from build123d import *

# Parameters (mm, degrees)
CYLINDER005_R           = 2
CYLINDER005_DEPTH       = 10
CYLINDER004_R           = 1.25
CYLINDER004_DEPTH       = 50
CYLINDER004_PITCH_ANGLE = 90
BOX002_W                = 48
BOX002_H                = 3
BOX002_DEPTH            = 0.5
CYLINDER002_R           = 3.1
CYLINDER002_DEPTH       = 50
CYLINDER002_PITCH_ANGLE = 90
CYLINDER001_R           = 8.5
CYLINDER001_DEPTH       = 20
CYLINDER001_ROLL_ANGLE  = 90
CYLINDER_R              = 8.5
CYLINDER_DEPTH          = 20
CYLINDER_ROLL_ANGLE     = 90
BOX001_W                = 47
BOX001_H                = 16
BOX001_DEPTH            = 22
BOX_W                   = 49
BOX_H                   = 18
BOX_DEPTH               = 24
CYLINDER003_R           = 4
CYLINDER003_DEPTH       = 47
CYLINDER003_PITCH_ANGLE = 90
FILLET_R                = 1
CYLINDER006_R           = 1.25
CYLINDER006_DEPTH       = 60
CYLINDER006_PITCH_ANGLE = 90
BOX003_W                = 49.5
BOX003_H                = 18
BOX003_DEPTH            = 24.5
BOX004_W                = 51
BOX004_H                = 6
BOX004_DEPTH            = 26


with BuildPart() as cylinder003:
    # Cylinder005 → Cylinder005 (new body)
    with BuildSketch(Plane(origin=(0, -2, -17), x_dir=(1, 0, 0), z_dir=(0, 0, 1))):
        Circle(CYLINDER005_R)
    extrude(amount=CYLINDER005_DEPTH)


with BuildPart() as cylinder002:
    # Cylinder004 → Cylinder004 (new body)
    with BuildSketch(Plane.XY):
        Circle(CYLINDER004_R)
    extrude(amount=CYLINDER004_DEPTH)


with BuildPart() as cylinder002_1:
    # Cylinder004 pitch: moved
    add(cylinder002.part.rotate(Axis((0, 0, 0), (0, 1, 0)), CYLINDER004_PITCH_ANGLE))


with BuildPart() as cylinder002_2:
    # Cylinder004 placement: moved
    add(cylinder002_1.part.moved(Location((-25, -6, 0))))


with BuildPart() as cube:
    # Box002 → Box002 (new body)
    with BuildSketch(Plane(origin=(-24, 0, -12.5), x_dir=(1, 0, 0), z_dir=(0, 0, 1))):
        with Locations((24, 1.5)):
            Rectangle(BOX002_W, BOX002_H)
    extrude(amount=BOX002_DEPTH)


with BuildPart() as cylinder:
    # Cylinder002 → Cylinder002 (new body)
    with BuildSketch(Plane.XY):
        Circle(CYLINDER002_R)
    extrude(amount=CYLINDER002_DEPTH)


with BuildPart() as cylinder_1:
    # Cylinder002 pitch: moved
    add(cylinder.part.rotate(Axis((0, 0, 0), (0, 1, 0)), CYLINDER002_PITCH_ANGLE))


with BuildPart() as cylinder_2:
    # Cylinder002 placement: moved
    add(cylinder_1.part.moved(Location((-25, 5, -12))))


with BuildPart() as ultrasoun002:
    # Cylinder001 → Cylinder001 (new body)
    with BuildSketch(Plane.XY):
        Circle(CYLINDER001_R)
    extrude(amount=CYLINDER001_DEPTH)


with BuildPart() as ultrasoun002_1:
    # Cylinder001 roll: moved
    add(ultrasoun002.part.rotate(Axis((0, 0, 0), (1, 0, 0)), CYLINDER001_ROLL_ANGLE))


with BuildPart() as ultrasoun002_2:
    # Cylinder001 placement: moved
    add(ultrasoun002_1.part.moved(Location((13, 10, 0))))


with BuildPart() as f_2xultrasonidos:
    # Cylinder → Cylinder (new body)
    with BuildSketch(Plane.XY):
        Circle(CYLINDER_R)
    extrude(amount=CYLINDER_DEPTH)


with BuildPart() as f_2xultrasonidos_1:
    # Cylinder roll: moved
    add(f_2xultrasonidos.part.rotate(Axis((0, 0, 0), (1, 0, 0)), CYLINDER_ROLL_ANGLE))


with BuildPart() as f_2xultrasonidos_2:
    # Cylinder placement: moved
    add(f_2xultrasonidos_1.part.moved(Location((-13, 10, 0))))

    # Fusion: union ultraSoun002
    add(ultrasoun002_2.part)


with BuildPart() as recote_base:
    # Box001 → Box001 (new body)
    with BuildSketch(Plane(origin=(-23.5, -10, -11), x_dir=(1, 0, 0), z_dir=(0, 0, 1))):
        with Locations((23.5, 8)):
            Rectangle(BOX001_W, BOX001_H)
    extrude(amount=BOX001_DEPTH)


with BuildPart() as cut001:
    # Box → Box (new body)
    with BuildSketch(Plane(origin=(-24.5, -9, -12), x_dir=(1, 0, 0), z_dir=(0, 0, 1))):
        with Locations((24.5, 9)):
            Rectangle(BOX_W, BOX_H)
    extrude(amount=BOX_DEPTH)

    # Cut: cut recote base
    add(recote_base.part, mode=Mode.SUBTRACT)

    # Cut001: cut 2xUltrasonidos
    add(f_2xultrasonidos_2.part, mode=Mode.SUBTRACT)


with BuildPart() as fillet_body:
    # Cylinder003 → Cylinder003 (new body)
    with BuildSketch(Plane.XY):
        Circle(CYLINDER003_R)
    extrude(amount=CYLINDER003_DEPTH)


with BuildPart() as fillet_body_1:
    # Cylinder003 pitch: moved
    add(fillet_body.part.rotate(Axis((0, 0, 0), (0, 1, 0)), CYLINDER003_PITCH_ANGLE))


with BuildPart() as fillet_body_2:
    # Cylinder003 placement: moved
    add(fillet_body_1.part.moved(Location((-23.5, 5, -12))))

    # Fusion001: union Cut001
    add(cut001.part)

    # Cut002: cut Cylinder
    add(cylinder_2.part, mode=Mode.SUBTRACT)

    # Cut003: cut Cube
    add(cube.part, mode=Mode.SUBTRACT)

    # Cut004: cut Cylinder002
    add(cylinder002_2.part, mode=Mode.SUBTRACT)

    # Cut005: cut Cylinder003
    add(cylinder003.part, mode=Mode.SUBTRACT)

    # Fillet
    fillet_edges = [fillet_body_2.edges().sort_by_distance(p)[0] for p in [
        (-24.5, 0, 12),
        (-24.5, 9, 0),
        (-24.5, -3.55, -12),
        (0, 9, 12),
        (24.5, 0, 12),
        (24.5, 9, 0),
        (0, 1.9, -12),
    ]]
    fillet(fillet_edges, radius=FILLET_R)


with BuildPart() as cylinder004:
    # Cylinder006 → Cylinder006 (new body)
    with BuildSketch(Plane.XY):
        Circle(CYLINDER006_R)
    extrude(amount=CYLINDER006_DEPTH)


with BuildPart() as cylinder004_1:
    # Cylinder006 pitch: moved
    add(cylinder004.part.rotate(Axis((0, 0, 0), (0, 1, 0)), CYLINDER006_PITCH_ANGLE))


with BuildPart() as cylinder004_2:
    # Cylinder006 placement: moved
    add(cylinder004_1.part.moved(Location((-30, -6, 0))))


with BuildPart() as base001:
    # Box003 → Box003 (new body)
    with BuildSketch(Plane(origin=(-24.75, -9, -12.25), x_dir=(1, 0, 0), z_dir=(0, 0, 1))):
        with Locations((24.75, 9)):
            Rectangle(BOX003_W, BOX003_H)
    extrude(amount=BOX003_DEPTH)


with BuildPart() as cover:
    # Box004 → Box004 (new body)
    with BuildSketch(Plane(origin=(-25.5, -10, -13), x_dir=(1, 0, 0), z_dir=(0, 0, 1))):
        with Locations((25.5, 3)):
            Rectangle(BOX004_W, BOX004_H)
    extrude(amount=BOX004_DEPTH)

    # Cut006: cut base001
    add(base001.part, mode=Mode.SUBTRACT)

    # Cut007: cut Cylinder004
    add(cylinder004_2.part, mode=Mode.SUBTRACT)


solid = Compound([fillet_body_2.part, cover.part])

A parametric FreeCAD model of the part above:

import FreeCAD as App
import Part
import Sketcher
from FreeCAD import Vector


def edges_at(feature, points):
    """Names of the edges that pass closest to the given points."""
    edges = feature.Shape.Edges
    near = lambda p: min(range(len(edges)), key=lambda i: edges[i].distToShape(Part.Vertex(*p))[0])
    return sorted({f"Edge{near(p) + 1}" for p in points})

doc = App.newDocument("Part")
params = doc.addObject("Spreadsheet::Sheet", "Params")
for row, (alias, value) in enumerate([
    ("sketch1_diameter", "4 mm"),
    ("pad1_length", "10 mm"),
    ("sketch2_diameter", "2.5 mm"),
    ("pad2_length", "50 mm"),
    ("sketch3_width", "48 mm"),
    ("sketch3_height", "3 mm"),
    ("pad3_length", "0.5 mm"),
    ("sketch4_diameter", "6.2 mm"),
    ("pad4_length", "50 mm"),
    ("sketch5_diameter", "17 mm"),
    ("pad5_length", "20 mm"),
    ("sketch6_diameter", "17 mm"),
    ("pad6_length", "20 mm"),
    ("sketch7_width", "47 mm"),
    ("sketch7_height", "16 mm"),
    ("pad7_length", "22 mm"),
    ("sketch8_width", "49 mm"),
    ("sketch8_height", "18 mm"),
    ("pad8_length", "24 mm"),
    ("sketch9_diameter", "8 mm"),
    ("pad9_length", "47 mm"),
    ("fillet_radius", "1 mm"),
    ("sketch10_diameter", "2.5 mm"),
    ("pad10_length", "60 mm"),
    ("sketch11_height", "18 mm"),
    ("sketch11_width", "49.5 mm"),
    ("pad11_length", "24.5 mm"),
    ("sketch12_width", "51 mm"),
    ("sketch12_height", "6 mm"),
    ("pad12_length", "26 mm"),
], start=1):
    params.set(f"A{row}", alias)
    params.set(f"B{row}", "=" + value)
    params.setAlias(f"B{row}", alias)

body = doc.addObject("PartDesign::Body", "Body")

sketch1 = doc.addObject("Sketcher::SketchObject", "Sketch")
body.addObject(sketch1)
sketch1.AttachmentSupport = (doc.XY_Plane, [""])
sketch1.MapMode = "FlatFace"
sketch1.AttachmentOffset = App.Placement(Vector(0, 0, -17), App.Rotation())
sketch1.addGeometry(Part.Circle(Vector(0, -2, 0), Vector(0, 0, 1), 2), False)
sketch1.addConstraint(Sketcher.Constraint("PointOnObject", 0, 3, -2))
sketch1.addConstraint(Sketcher.Constraint("Diameter", 0, 4.0))
sketch1.addConstraint(Sketcher.Constraint("DistanceY", 0, 3, -1, 1, 2.0))
sketch1.setExpression("Constraints[1]", "Params.sketch1_diameter")
pad1 = doc.addObject("PartDesign::Pad", "Pad")
body.addObject(pad1)
pad1.Profile = sketch1
pad1.setExpression("Length", "Params.pad1_length")
body2 = doc.addObject("PartDesign::Body", "Body001")

sketch2 = doc.addObject("Sketcher::SketchObject", "Sketch001")
body2.addObject(sketch2)
sketch2.AttachmentSupport = (doc.getObject("XY_Plane001"), [""])
sketch2.MapMode = "FlatFace"
sketch2.addGeometry(Part.Circle(Vector(0, 0, 0), Vector(0, 0, 1), 1.25), False)
sketch2.addConstraint(Sketcher.Constraint("Coincident", 0, 3, -1, 1))
sketch2.addConstraint(Sketcher.Constraint("Diameter", 0, 2.5))
sketch2.setExpression("Constraints[1]", "Params.sketch2_diameter")
pad2 = doc.addObject("PartDesign::Pad", "Pad001")
body2.addObject(pad2)
pad2.Profile = sketch2
pad2.setExpression("Length", "Params.pad2_length")
body3 = doc.addObject("PartDesign::Body", "Body002")
doc.recompute()

body2.Placement = App.Placement(Vector(0, 0, 0), App.Rotation(Vector(0, 1, 0), 90))
boolean = doc.addObject("PartDesign::Boolean", "Boolean")
body3.addObject(boolean)
boolean.Type = "Fuse"
boolean.addObjects([body2])
body4 = doc.addObject("PartDesign::Body", "Body003")
doc.recompute()

body3.Placement = App.Placement(Vector(-25, -6, 0), App.Rotation(Vector(0, 0, 1), 0))
boolean2 = doc.addObject("PartDesign::Boolean", "Boolean001")
body4.addObject(boolean2)
boolean2.Type = "Fuse"
boolean2.addObjects([body3])
body5 = doc.addObject("PartDesign::Body", "Body004")

sketch3 = doc.addObject("Sketcher::SketchObject", "Sketch002")
body5.addObject(sketch3)
sketch3.AttachmentSupport = (doc.getObject("XY_Plane004"), [""])
sketch3.MapMode = "FlatFace"
sketch3.AttachmentOffset = App.Placement(Vector(0, 0, -12.5), App.Rotation())
sketch3.addGeometry(Part.LineSegment(Vector(-24, 3, 0), Vector(-24, 0, 0)), False)
sketch3.addGeometry(Part.LineSegment(Vector(-24, 0, 0), Vector(24, 0, 0)), False)
sketch3.addGeometry(Part.LineSegment(Vector(24, 0, 0), Vector(24, 3, 0)), False)
sketch3.addGeometry(Part.LineSegment(Vector(24, 3, 0), Vector(-24, 3, 0)), False)
sketch3.addConstraint(Sketcher.Constraint("Coincident", 0, 2, 1, 1))
sketch3.addConstraint(Sketcher.Constraint("Coincident", 1, 2, 2, 1))
sketch3.addConstraint(Sketcher.Constraint("Coincident", 2, 2, 3, 1))
sketch3.addConstraint(Sketcher.Constraint("Coincident", 3, 2, 0, 1))
sketch3.addConstraint(Sketcher.Constraint("Vertical", 0))
sketch3.addConstraint(Sketcher.Constraint("Horizontal", 1))
sketch3.addConstraint(Sketcher.Constraint("Vertical", 2))
sketch3.addConstraint(Sketcher.Constraint("Horizontal", 3))
sketch3.addConstraint(Sketcher.Constraint("Symmetric", 0, 2, 1, 2, -1, 1))
sketch3.addConstraint(Sketcher.Constraint("DistanceX", 1, 1, 1, 2, 48.0))
sketch3.addConstraint(Sketcher.Constraint("DistanceY", 0, 2, 0, 1, 3.0))
sketch3.setExpression("Constraints[9]", "Params.sketch3_width")
sketch3.setExpression("Constraints[10]", "Params.sketch3_height")
pad3 = doc.addObject("PartDesign::Pad", "Pad002")
body5.addObject(pad3)
pad3.Profile = sketch3
pad3.setExpression("Length", "Params.pad3_length")
body6 = doc.addObject("PartDesign::Body", "Body005")

sketch4 = doc.addObject("Sketcher::SketchObject", "Sketch003")
body6.addObject(sketch4)
sketch4.AttachmentSupport = (doc.getObject("XY_Plane005"), [""])
sketch4.MapMode = "FlatFace"
sketch4.addGeometry(Part.Circle(Vector(0, 0, 0), Vector(0, 0, 1), 3.1), False)
sketch4.addConstraint(Sketcher.Constraint("Coincident", 0, 3, -1, 1))
sketch4.addConstraint(Sketcher.Constraint("Diameter", 0, 6.2))
sketch4.setExpression("Constraints[1]", "Params.sketch4_diameter")
pad4 = doc.addObject("PartDesign::Pad", "Pad003")
body6.addObject(pad4)
pad4.Profile = sketch4
pad4.setExpression("Length", "Params.pad4_length")
body7 = doc.addObject("PartDesign::Body", "Body006")
doc.recompute()

body6.Placement = App.Placement(Vector(0, 0, 0), App.Rotation(Vector(0, 1, 0), 90))
boolean3 = doc.addObject("PartDesign::Boolean", "Boolean002")
body7.addObject(boolean3)
boolean3.Type = "Fuse"
boolean3.addObjects([body6])
body8 = doc.addObject("PartDesign::Body", "Body007")
doc.recompute()

body7.Placement = App.Placement(Vector(-25, 5, -12), App.Rotation(Vector(0, 0, 1), 0))
boolean4 = doc.addObject("PartDesign::Boolean", "Boolean003")
body8.addObject(boolean4)
boolean4.Type = "Fuse"
boolean4.addObjects([body7])
body9 = doc.addObject("PartDesign::Body", "Body008")

sketch5 = doc.addObject("Sketcher::SketchObject", "Sketch004")
body9.addObject(sketch5)
sketch5.AttachmentSupport = (doc.getObject("XY_Plane008"), [""])
sketch5.MapMode = "FlatFace"
sketch5.addGeometry(Part.Circle(Vector(0, 0, 0), Vector(0, 0, 1), 8.5), False)
sketch5.addConstraint(Sketcher.Constraint("Coincident", 0, 3, -1, 1))
sketch5.addConstraint(Sketcher.Constraint("Diameter", 0, 17.0))
sketch5.setExpression("Constraints[1]", "Params.sketch5_diameter")
pad5 = doc.addObject("PartDesign::Pad", "Pad004")
body9.addObject(pad5)
pad5.Profile = sketch5
pad5.setExpression("Length", "Params.pad5_length")
body10 = doc.addObject("PartDesign::Body", "Body009")
doc.recompute()

body9.Placement = App.Placement(Vector(0, 0, 0), App.Rotation(Vector(1, 0, 0), 90))
boolean5 = doc.addObject("PartDesign::Boolean", "Boolean004")
body10.addObject(boolean5)
boolean5.Type = "Fuse"
boolean5.addObjects([body9])
body11 = doc.addObject("PartDesign::Body", "Body010")
doc.recompute()

body10.Placement = App.Placement(Vector(13, 10, 0), App.Rotation(Vector(0, 0, 1), 0))
boolean6 = doc.addObject("PartDesign::Boolean", "Boolean005")
body11.addObject(boolean6)
boolean6.Type = "Fuse"
boolean6.addObjects([body10])
body12 = doc.addObject("PartDesign::Body", "Body011")

sketch6 = doc.addObject("Sketcher::SketchObject", "Sketch005")
body12.addObject(sketch6)
sketch6.AttachmentSupport = (doc.getObject("XY_Plane011"), [""])
sketch6.MapMode = "FlatFace"
sketch6.addGeometry(Part.Circle(Vector(0, 0, 0), Vector(0, 0, 1), 8.5), False)
sketch6.addConstraint(Sketcher.Constraint("Coincident", 0, 3, -1, 1))
sketch6.addConstraint(Sketcher.Constraint("Diameter", 0, 17.0))
sketch6.setExpression("Constraints[1]", "Params.sketch6_diameter")
pad6 = doc.addObject("PartDesign::Pad", "Pad005")
body12.addObject(pad6)
pad6.Profile = sketch6
pad6.setExpression("Length", "Params.pad6_length")
body13 = doc.addObject("PartDesign::Body", "Body012")
doc.recompute()

body12.Placement = App.Placement(Vector(0, 0, 0), App.Rotation(Vector(1, 0, 0), 90))
boolean7 = doc.addObject("PartDesign::Boolean", "Boolean006")
body13.addObject(boolean7)
boolean7.Type = "Fuse"
boolean7.addObjects([body12])
body14 = doc.addObject("PartDesign::Body", "Body013")
body14.AllowCompound = True
doc.recompute()

body13.Placement = App.Placement(Vector(-13, 10, 0), App.Rotation(Vector(0, 0, 1), 0))
boolean8 = doc.addObject("PartDesign::Boolean", "Boolean007")
body14.addObject(boolean8)
boolean8.Type = "Fuse"
boolean8.addObjects([body13])
doc.recompute()

boolean9 = doc.addObject("PartDesign::Boolean", "Boolean008")
body14.addObject(boolean9)
boolean9.Type = "Fuse"
boolean9.addObjects([body11])
body15 = doc.addObject("PartDesign::Body", "Body014")

sketch7 = doc.addObject("Sketcher::SketchObject", "Sketch006")
body15.addObject(sketch7)
sketch7.AttachmentSupport = (doc.getObject("XY_Plane014"), [""])
sketch7.MapMode = "FlatFace"
sketch7.AttachmentOffset = App.Placement(Vector(0, 0, -11), App.Rotation())
sketch7.addGeometry(Part.LineSegment(Vector(-23.5, 6, 0), Vector(-23.5, -10, 0)), False)
sketch7.addGeometry(Part.LineSegment(Vector(-23.5, -10, 0), Vector(23.5, -10, 0)), False)
sketch7.addGeometry(Part.LineSegment(Vector(23.5, -10, 0), Vector(23.5, 6, 0)), False)
sketch7.addGeometry(Part.LineSegment(Vector(23.5, 6, 0), Vector(-23.5, 6, 0)), False)
sketch7.addConstraint(Sketcher.Constraint("Coincident", 0, 2, 1, 1))
sketch7.addConstraint(Sketcher.Constraint("Coincident", 1, 2, 2, 1))
sketch7.addConstraint(Sketcher.Constraint("Coincident", 2, 2, 3, 1))
sketch7.addConstraint(Sketcher.Constraint("Coincident", 3, 2, 0, 1))
sketch7.addConstraint(Sketcher.Constraint("Vertical", 0))
sketch7.addConstraint(Sketcher.Constraint("Horizontal", 1))
sketch7.addConstraint(Sketcher.Constraint("Vertical", 2))
sketch7.addConstraint(Sketcher.Constraint("Horizontal", 3))
sketch7.addConstraint(Sketcher.Constraint("DistanceX", 1, 1, 1, 2, 47.0))
sketch7.addConstraint(Sketcher.Constraint("DistanceY", 0, 2, 0, 1, 16.0))
sketch7.addConstraint(Sketcher.Constraint("DistanceY", 0, 2, -1, 1, 10.0))
sketch7.addConstraint(Sketcher.Constraint("DistanceX", 0, 2, -1, 1, 23.5))
sketch7.setExpression("Constraints[8]", "Params.sketch7_width")
sketch7.setExpression("Constraints[9]", "Params.sketch7_height")
pad7 = doc.addObject("PartDesign::Pad", "Pad006")
body15.addObject(pad7)
pad7.Profile = sketch7
pad7.setExpression("Length", "Params.pad7_length")
body16 = doc.addObject("PartDesign::Body", "Body015")

sketch8 = doc.addObject("Sketcher::SketchObject", "Sketch007")
body16.addObject(sketch8)
sketch8.AttachmentSupport = (doc.getObject("XY_Plane015"), [""])
sketch8.MapMode = "FlatFace"
sketch8.AttachmentOffset = App.Placement(Vector(0, 0, -12), App.Rotation())
sketch8.addGeometry(Part.LineSegment(Vector(-24.5, 9, 0), Vector(-24.5, -9, 0)), False)
sketch8.addGeometry(Part.LineSegment(Vector(-24.5, -9, 0), Vector(24.5, -9, 0)), False)
sketch8.addGeometry(Part.LineSegment(Vector(24.5, -9, 0), Vector(24.5, 9, 0)), False)
sketch8.addGeometry(Part.LineSegment(Vector(24.5, 9, 0), Vector(-24.5, 9, 0)), False)
sketch8.addConstraint(Sketcher.Constraint("Coincident", 0, 2, 1, 1))
sketch8.addConstraint(Sketcher.Constraint("Coincident", 1, 2, 2, 1))
sketch8.addConstraint(Sketcher.Constraint("Coincident", 2, 2, 3, 1))
sketch8.addConstraint(Sketcher.Constraint("Coincident", 3, 2, 0, 1))
sketch8.addConstraint(Sketcher.Constraint("Vertical", 0))
sketch8.addConstraint(Sketcher.Constraint("Horizontal", 1))
sketch8.addConstraint(Sketcher.Constraint("Vertical", 2))
sketch8.addConstraint(Sketcher.Constraint("Horizontal", 3))
sketch8.addConstraint(Sketcher.Constraint("Symmetric", 0, 2, 2, 2, -1, 1))
sketch8.addConstraint(Sketcher.Constraint("DistanceX", 1, 1, 1, 2, 49.0))
sketch8.addConstraint(Sketcher.Constraint("DistanceY", 0, 2, 0, 1, 18.0))
sketch8.setExpression("Constraints[9]", "Params.sketch8_width")
sketch8.setExpression("Constraints[10]", "Params.sketch8_height")
pad8 = doc.addObject("PartDesign::Pad", "Pad007")
body16.addObject(pad8)
pad8.Profile = sketch8
pad8.setExpression("Length", "Params.pad8_length")
doc.recompute()

boolean10 = doc.addObject("PartDesign::Boolean", "Boolean009")
body16.addObject(boolean10)
boolean10.Type = "Cut"
boolean10.addObjects([body15])
doc.recompute()

boolean11 = doc.addObject("PartDesign::Boolean", "Boolean010")
body16.addObject(boolean11)
boolean11.Type = "Cut"
boolean11.addObjects([body14])
body17 = doc.addObject("PartDesign::Body", "Body016")

sketch9 = doc.addObject("Sketcher::SketchObject", "Sketch008")
body17.addObject(sketch9)
sketch9.AttachmentSupport = (doc.getObject("XY_Plane016"), [""])
sketch9.MapMode = "FlatFace"
sketch9.addGeometry(Part.Circle(Vector(0, 0, 0), Vector(0, 0, 1), 4), False)
sketch9.addConstraint(Sketcher.Constraint("Coincident", 0, 3, -1, 1))
sketch9.addConstraint(Sketcher.Constraint("Diameter", 0, 8.0))
sketch9.setExpression("Constraints[1]", "Params.sketch9_diameter")
pad9 = doc.addObject("PartDesign::Pad", "Pad008")
body17.addObject(pad9)
pad9.Profile = sketch9
pad9.setExpression("Length", "Params.pad9_length")
body18 = doc.addObject("PartDesign::Body", "Body017")
doc.recompute()

body17.Placement = App.Placement(Vector(0, 0, 0), App.Rotation(Vector(0, 1, 0), 90))
boolean12 = doc.addObject("PartDesign::Boolean", "Boolean011")
body18.addObject(boolean12)
boolean12.Type = "Fuse"
boolean12.addObjects([body17])
body19 = doc.addObject("PartDesign::Body", "Body018")
doc.recompute()

body18.Placement = App.Placement(Vector(-23.5, 5, -12), App.Rotation(Vector(0, 0, 1), 0))
boolean13 = doc.addObject("PartDesign::Boolean", "Boolean012")
body19.addObject(boolean13)
boolean13.Type = "Fuse"
boolean13.addObjects([body18])
doc.recompute()

boolean14 = doc.addObject("PartDesign::Boolean", "Boolean013")
body19.addObject(boolean14)
boolean14.Type = "Fuse"
boolean14.addObjects([body16])
doc.recompute()

boolean15 = doc.addObject("PartDesign::Boolean", "Boolean014")
body19.addObject(boolean15)
boolean15.Type = "Cut"
boolean15.addObjects([body8])
doc.recompute()

boolean16 = doc.addObject("PartDesign::Boolean", "Boolean015")
body19.addObject(boolean16)
boolean16.Type = "Cut"
boolean16.addObjects([body5])
doc.recompute()

boolean17 = doc.addObject("PartDesign::Boolean", "Boolean016")
body19.addObject(boolean17)
boolean17.Type = "Cut"
boolean17.addObjects([body4])
doc.recompute()

boolean18 = doc.addObject("PartDesign::Boolean", "Boolean017")
body19.addObject(boolean18)
boolean18.Type = "Cut"
boolean18.addObjects([body])
doc.recompute()

fillet = doc.addObject("PartDesign::Fillet", "Fillet")
body19.addObject(fillet)
fillet.Base = (boolean18, edges_at(boolean18, [
    (-24.5, 0, 12),
    (-24.5, 9, 0),
    (-24.5, -3.55, -12),
    (0, 9, 12),
    (24.5, 0, 12),
    (24.5, 9, 0),
    (0, 1.9, -12),
]))
fillet.setExpression("Radius", "Params.fillet_radius")
body20 = doc.addObject("PartDesign::Body", "Body019")

sketch10 = doc.addObject("Sketcher::SketchObject", "Sketch009")
body20.addObject(sketch10)
sketch10.AttachmentSupport = (doc.getObject("XY_Plane019"), [""])
sketch10.MapMode = "FlatFace"
sketch10.addGeometry(Part.Circle(Vector(0, 0, 0), Vector(0, 0, 1), 1.25), False)
sketch10.addConstraint(Sketcher.Constraint("Coincident", 0, 3, -1, 1))
sketch10.addConstraint(Sketcher.Constraint("Diameter", 0, 2.5))
sketch10.setExpression("Constraints[1]", "Params.sketch10_diameter")
pad10 = doc.addObject("PartDesign::Pad", "Pad009")
body20.addObject(pad10)
pad10.Profile = sketch10
pad10.setExpression("Length", "Params.pad10_length")
body21 = doc.addObject("PartDesign::Body", "Body020")
doc.recompute()

body20.Placement = App.Placement(Vector(0, 0, 0), App.Rotation(Vector(0, 1, 0), 90))
boolean19 = doc.addObject("PartDesign::Boolean", "Boolean018")
body21.addObject(boolean19)
boolean19.Type = "Fuse"
boolean19.addObjects([body20])
body22 = doc.addObject("PartDesign::Body", "Body021")
doc.recompute()

body21.Placement = App.Placement(Vector(-30, -6, 0), App.Rotation(Vector(0, 0, 1), 0))
boolean20 = doc.addObject("PartDesign::Boolean", "Boolean019")
body22.addObject(boolean20)
boolean20.Type = "Fuse"
boolean20.addObjects([body21])
body23 = doc.addObject("PartDesign::Body", "Body022")

sketch11 = doc.addObject("Sketcher::SketchObject", "Sketch010")
body23.addObject(sketch11)
sketch11.AttachmentSupport = (doc.getObject("XY_Plane022"), [""])
sketch11.MapMode = "FlatFace"
sketch11.AttachmentOffset = App.Placement(Vector(0, 0, -12.25), App.Rotation())
sketch11.addGeometry(Part.LineSegment(Vector(-24.75, 9, 0), Vector(-24.75, -9, 0)), False)
sketch11.addGeometry(Part.LineSegment(Vector(-24.75, -9, 0), Vector(24.75, -9, 0)), False)
sketch11.addGeometry(Part.LineSegment(Vector(24.75, -9, 0), Vector(24.75, 9, 0)), False)
sketch11.addGeometry(Part.LineSegment(Vector(24.75, 9, 0), Vector(-24.75, 9, 0)), False)
sketch11.addConstraint(Sketcher.Constraint("Coincident", 0, 2, 1, 1))
sketch11.addConstraint(Sketcher.Constraint("Coincident", 1, 2, 2, 1))
sketch11.addConstraint(Sketcher.Constraint("Coincident", 2, 2, 3, 1))
sketch11.addConstraint(Sketcher.Constraint("Coincident", 3, 2, 0, 1))
sketch11.addConstraint(Sketcher.Constraint("Vertical", 0))
sketch11.addConstraint(Sketcher.Constraint("Horizontal", 1))
sketch11.addConstraint(Sketcher.Constraint("Vertical", 2))
sketch11.addConstraint(Sketcher.Constraint("Horizontal", 3))
sketch11.addConstraint(Sketcher.Constraint("Symmetric", 0, 2, 2, 2, -1, 1))
sketch11.addConstraint(Sketcher.Constraint("DistanceY", 0, 2, 0, 1, 18.0))
sketch11.addConstraint(Sketcher.Constraint("DistanceX", 1, 1, 1, 2, 49.5))
sketch11.setExpression("Constraints[9]", "Params.sketch11_height")
sketch11.setExpression("Constraints[10]", "Params.sketch11_width")
pad11 = doc.addObject("PartDesign::Pad", "Pad010")
body23.addObject(pad11)
pad11.Profile = sketch11
pad11.setExpression("Length", "Params.pad11_length")
body24 = doc.addObject("PartDesign::Body", "Body023")

sketch12 = doc.addObject("Sketcher::SketchObject", "Sketch011")
body24.addObject(sketch12)
sketch12.AttachmentSupport = (doc.getObject("XY_Plane023"), [""])
sketch12.MapMode = "FlatFace"
sketch12.AttachmentOffset = App.Placement(Vector(0, 0, -13), App.Rotation())
sketch12.addGeometry(Part.LineSegment(Vector(-25.5, -4, 0), Vector(-25.5, -10, 0)), False)
sketch12.addGeometry(Part.LineSegment(Vector(-25.5, -10, 0), Vector(25.5, -10, 0)), False)
sketch12.addGeometry(Part.LineSegment(Vector(25.5, -10, 0), Vector(25.5, -4, 0)), False)
sketch12.addGeometry(Part.LineSegment(Vector(25.5, -4, 0), Vector(-25.5, -4, 0)), False)
sketch12.addConstraint(Sketcher.Constraint("Coincident", 0, 2, 1, 1))
sketch12.addConstraint(Sketcher.Constraint("Coincident", 1, 2, 2, 1))
sketch12.addConstraint(Sketcher.Constraint("Coincident", 2, 2, 3, 1))
sketch12.addConstraint(Sketcher.Constraint("Coincident", 3, 2, 0, 1))
sketch12.addConstraint(Sketcher.Constraint("Vertical", 0))
sketch12.addConstraint(Sketcher.Constraint("Horizontal", 1))
sketch12.addConstraint(Sketcher.Constraint("Vertical", 2))
sketch12.addConstraint(Sketcher.Constraint("Horizontal", 3))
sketch12.addConstraint(Sketcher.Constraint("DistanceX", 1, 1, 1, 2, 51.0))
sketch12.addConstraint(Sketcher.Constraint("DistanceY", 0, 2, 0, 1, 6.0))
sketch12.addConstraint(Sketcher.Constraint("DistanceY", 0, 2, -1, 1, 10.0))
sketch12.addConstraint(Sketcher.Constraint("DistanceX", 0, 2, -1, 1, 25.5))
sketch12.setExpression("Constraints[8]", "Params.sketch12_width")
sketch12.setExpression("Constraints[9]", "Params.sketch12_height")
pad12 = doc.addObject("PartDesign::Pad", "Pad011")
body24.addObject(pad12)
pad12.Profile = sketch12
pad12.setExpression("Length", "Params.pad12_length")
doc.recompute()

boolean21 = doc.addObject("PartDesign::Boolean", "Boolean020")
body24.addObject(boolean21)
boolean21.Type = "Cut"
boolean21.addObjects([body23])
doc.recompute()

boolean22 = doc.addObject("PartDesign::Boolean", "Boolean021")
body24.addObject(boolean22)
boolean22.Type = "Cut"
boolean22.addObjects([body22])

doc.recompute()
